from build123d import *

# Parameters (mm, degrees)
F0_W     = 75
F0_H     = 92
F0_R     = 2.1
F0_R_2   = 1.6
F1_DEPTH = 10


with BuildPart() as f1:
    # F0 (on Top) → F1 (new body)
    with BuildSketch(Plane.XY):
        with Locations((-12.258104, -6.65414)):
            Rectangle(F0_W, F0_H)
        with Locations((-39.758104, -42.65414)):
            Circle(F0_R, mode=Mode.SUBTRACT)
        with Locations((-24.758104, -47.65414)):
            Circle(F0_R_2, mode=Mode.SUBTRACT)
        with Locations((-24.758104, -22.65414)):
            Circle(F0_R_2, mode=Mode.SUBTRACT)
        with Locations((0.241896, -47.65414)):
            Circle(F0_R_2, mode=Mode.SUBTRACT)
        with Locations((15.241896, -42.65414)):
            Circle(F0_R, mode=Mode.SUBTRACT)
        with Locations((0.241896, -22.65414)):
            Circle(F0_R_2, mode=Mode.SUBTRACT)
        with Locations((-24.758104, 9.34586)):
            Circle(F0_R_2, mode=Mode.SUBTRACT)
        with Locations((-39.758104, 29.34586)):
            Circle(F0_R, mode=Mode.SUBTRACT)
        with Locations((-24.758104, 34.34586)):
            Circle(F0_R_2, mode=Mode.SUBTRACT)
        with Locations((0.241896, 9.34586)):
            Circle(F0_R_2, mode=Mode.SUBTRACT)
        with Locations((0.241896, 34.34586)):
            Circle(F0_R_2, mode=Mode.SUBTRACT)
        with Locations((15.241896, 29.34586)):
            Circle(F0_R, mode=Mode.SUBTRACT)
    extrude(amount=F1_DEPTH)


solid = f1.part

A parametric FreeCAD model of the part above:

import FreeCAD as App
import Part
import Sketcher

V = App.Vector

doc = App.newDocument("Part")
body = doc.addObject("PartDesign::Body", "Body")

sketch1 = body.newObject("Sketcher::SketchObject", "Sketch")
sketch1.AttachmentSupport = (doc.getObject("XY_Plane"), [""])
sketch1.MapMode = "FlatFace"
sketch1.addGeometry(Part.LineSegment(V(-49.8, 39.3, 0), V(-49.8, -52.7, 0)), False)
sketch1.addGeometry(Part.LineSegment(V(-49.8, -52.7, 0), V(25.2, -52.7, 0)), False)
sketch1.addGeometry(Part.LineSegment(V(25.2, -52.7, 0), V(25.2, 39.3, 0)), False)
sketch1.addGeometry(Part.LineSegment(V(25.2, 39.3, 0), V(-49.8, 39.3, 0)), False)
sketch1.addGeometry(Part.Circle(V(-39.8, -42.7, 0), V(0, 0, 1), 2.1), False)
sketch1.addGeometry(Part.Circle(V(-24.8, -47.7, 0), V(0, 0, 1), 1.6), False)
sketch1.addGeometry(Part.Circle(V(-24.8, -22.7, 0), V(0, 0, 1), 1.6), False)
sketch1.addGeometry(Part.Circle(V(0.2, -47.7, 0), V(0, 0, 1), 1.6), False)
sketch1.addGeometry(Part.Circle(V(15.2, -42.7, 0), V(0, 0, 1), 2.1), False)
sketch1.addGeometry(Part.Circle(V(0.2, -22.7, 0), V(0, 0, 1), 1.6), False)
sketch1.addGeometry(Part.Circle(V(-24.8, 9.3, 0), V(0, 0, 1), 1.6), False)
sketch1.addGeometry(Part.Circle(V(-39.8, 29.3, 0), V(0, 0, 1), 2.1), False)
sketch1.addGeometry(Part.Circle(V(-24.8, 34.3, 0), V(0, 0, 1), 1.6), False)
sketch1.addGeometry(Part.Circle(V(0.2, 9.3, 0), V(0, 0, 1), 1.6), False)
sketch1.addGeometry(Part.Circle(V(0.2, 34.3, 0), V(0, 0, 1), 1.6), False)
sketch1.addGeometry(Part.Circle(V(15.2, 29.3, 0), V(0, 0, 1), 2.1), False)
sketch1.addConstraint(Sketcher.Constraint("Coincident", 0, 2, 1, 1))
sketch1.addConstraint(Sketcher.Constraint("Coincident", 1, 2, 2, 1))
sketch1.addConstraint(Sketcher.Constraint("Coincident", 2, 2, 3, 1))
sketch1.addConstraint(Sketcher.Constraint("Coincident", 3, 2, 0, 1))
sketch1.addConstraint(Sketcher.Constraint("Vertical", 0))
sketch1.addConstraint(Sketcher.Constraint("Horizontal", 1))
sketch1.addConstraint(Sketcher.Constraint("Vertical", 2))
sketch1.addConstraint(Sketcher.Constraint("Horizontal", 3))
sketch1.addConstraint(Sketcher.Constraint("Equal", 5, 6))
sketch1.addConstraint(Sketcher.Constraint("Equal", 6, 7))
sketch1.addConstraint(Sketcher.Constraint("Equal", 4, 8))
sketch1.addConstraint(Sketcher.Constraint("Equal", 7, 9))
sketch1.addConstraint(Sketcher.Constraint("Equal", 9, 10))
sketch1.addConstraint(Sketcher.Constraint("Equal", 8, 11))
sketch1.addConstraint(Sketcher.Constraint("Equal", 10, 12))
sketch1.addConstraint(Sketcher.Constraint("Equal", 12, 13))
sketch1.addConstraint(Sketcher.Constraint("Equal", 13, 14))
sketch1.addConstraint(Sketcher.Constraint("Equal", 11, 15))
sketch1.addConstraint(Sketcher.Constraint("Horizontal", 5, 3, 7, 3))
sketch1.addConstraint(Sketcher.Constraint("Horizontal", 4, 3, 8, 3))
sketch1.addConstraint(Sketcher.Constraint("Horizontal", 6, 3, 9, 3))
sketch1.addConstraint(Sketcher.Constraint("Horizontal", 10, 3, 13, 3))
sketch1.addConstraint(Sketcher.Constraint("Horizontal", 12, 3, 14, 3))
sketch1.addConstraint(Sketcher.Constraint("Horizontal", 11, 3, 15, 3))
sketch1.addConstraint(Sketcher.Constraint("Vertical", 5, 3, 6, 3))
sketch1.addConstraint(Sketcher.Constraint("Vertical", 7, 3, 9, 3))
sketch1.addConstraint(Sketcher.Constraint("Vertical", 6, 3, 10, 3))
sketch1.addConstraint(Sketcher.Constraint("Vertical", 4, 3, 11, 3))
sketch1.addConstraint(Sketcher.Constraint("Vertical", 10, 3, 12, 3))
sketch1.addConstraint(Sketcher.Constraint("Vertical", 9, 3, 13, 3))
sketch1.addConstraint(Sketcher.Constraint("Vertical", 13, 3, 14, 3))
sketch1.addConstraint(Sketcher.Constraint("Vertical", 8, 3, 15, 3))
sketch1.addConstraint(Sketcher.Constraint("Diameter", 4, 4.2))
sketch1.addConstraint(Sketcher.Constraint("Diameter", 5, 3.2))
sketch1.addConstraint(Sketcher.Constraint("DistanceX", 1, 1, 1, 2, 75.0))
sketch1.addConstraint(Sketcher.Constraint("DistanceY", 0, 2, 0, 1, 92.0))
sketch1.addConstraint(Sketcher.Constraint("DistanceX", 4, 3, 5, 3, 15.0))
sketch1.addConstraint(Sketcher.Constraint("DistanceY", 5, 3, 4, 3, 5.0))
sketch1.addConstraint(Sketcher.Constraint("DistanceY", 5, 3, 6, 3, 25.0))
sketch1.addConstraint(Sketcher.Constraint("DistanceX", 5, 3, 7, 3, 25.0))
sketch1.addConstraint(Sketcher.Constraint("DistanceX", 7, 3, 8, 3, 15.0))
sketch1.addConstraint(Sketcher.Constraint("DistanceY", 6, 3, 10, 3, 32.0))
sketch1.addConstraint(Sketcher.Constraint("DistanceY", 10, 3, 11, 3, 20.0))
sketch1.addConstraint(Sketcher.Constraint("DistanceY", 11, 3, 12, 3, 5.0))
sketch1.addConstraint(Sketcher.Constraint("DistanceX", 0, 2, 4, 3, 10.0))
sketch1.addConstraint(Sketcher.Constraint("DistanceY", 0, 2, 4, 3, 10.0))
sketch1.addConstraint(Sketcher.Constraint("DistanceY", 4, 3, -1, 1, 42.65414))
sketch1.addConstraint(Sketcher.Constraint("DistanceX", 4, 3, -1, 1, 39.758104))
pad1 = body.newObject("PartDesign::Pad", "Pad")
pad1.Profile = sketch1
pad1.Length = 10

doc.recompute()
